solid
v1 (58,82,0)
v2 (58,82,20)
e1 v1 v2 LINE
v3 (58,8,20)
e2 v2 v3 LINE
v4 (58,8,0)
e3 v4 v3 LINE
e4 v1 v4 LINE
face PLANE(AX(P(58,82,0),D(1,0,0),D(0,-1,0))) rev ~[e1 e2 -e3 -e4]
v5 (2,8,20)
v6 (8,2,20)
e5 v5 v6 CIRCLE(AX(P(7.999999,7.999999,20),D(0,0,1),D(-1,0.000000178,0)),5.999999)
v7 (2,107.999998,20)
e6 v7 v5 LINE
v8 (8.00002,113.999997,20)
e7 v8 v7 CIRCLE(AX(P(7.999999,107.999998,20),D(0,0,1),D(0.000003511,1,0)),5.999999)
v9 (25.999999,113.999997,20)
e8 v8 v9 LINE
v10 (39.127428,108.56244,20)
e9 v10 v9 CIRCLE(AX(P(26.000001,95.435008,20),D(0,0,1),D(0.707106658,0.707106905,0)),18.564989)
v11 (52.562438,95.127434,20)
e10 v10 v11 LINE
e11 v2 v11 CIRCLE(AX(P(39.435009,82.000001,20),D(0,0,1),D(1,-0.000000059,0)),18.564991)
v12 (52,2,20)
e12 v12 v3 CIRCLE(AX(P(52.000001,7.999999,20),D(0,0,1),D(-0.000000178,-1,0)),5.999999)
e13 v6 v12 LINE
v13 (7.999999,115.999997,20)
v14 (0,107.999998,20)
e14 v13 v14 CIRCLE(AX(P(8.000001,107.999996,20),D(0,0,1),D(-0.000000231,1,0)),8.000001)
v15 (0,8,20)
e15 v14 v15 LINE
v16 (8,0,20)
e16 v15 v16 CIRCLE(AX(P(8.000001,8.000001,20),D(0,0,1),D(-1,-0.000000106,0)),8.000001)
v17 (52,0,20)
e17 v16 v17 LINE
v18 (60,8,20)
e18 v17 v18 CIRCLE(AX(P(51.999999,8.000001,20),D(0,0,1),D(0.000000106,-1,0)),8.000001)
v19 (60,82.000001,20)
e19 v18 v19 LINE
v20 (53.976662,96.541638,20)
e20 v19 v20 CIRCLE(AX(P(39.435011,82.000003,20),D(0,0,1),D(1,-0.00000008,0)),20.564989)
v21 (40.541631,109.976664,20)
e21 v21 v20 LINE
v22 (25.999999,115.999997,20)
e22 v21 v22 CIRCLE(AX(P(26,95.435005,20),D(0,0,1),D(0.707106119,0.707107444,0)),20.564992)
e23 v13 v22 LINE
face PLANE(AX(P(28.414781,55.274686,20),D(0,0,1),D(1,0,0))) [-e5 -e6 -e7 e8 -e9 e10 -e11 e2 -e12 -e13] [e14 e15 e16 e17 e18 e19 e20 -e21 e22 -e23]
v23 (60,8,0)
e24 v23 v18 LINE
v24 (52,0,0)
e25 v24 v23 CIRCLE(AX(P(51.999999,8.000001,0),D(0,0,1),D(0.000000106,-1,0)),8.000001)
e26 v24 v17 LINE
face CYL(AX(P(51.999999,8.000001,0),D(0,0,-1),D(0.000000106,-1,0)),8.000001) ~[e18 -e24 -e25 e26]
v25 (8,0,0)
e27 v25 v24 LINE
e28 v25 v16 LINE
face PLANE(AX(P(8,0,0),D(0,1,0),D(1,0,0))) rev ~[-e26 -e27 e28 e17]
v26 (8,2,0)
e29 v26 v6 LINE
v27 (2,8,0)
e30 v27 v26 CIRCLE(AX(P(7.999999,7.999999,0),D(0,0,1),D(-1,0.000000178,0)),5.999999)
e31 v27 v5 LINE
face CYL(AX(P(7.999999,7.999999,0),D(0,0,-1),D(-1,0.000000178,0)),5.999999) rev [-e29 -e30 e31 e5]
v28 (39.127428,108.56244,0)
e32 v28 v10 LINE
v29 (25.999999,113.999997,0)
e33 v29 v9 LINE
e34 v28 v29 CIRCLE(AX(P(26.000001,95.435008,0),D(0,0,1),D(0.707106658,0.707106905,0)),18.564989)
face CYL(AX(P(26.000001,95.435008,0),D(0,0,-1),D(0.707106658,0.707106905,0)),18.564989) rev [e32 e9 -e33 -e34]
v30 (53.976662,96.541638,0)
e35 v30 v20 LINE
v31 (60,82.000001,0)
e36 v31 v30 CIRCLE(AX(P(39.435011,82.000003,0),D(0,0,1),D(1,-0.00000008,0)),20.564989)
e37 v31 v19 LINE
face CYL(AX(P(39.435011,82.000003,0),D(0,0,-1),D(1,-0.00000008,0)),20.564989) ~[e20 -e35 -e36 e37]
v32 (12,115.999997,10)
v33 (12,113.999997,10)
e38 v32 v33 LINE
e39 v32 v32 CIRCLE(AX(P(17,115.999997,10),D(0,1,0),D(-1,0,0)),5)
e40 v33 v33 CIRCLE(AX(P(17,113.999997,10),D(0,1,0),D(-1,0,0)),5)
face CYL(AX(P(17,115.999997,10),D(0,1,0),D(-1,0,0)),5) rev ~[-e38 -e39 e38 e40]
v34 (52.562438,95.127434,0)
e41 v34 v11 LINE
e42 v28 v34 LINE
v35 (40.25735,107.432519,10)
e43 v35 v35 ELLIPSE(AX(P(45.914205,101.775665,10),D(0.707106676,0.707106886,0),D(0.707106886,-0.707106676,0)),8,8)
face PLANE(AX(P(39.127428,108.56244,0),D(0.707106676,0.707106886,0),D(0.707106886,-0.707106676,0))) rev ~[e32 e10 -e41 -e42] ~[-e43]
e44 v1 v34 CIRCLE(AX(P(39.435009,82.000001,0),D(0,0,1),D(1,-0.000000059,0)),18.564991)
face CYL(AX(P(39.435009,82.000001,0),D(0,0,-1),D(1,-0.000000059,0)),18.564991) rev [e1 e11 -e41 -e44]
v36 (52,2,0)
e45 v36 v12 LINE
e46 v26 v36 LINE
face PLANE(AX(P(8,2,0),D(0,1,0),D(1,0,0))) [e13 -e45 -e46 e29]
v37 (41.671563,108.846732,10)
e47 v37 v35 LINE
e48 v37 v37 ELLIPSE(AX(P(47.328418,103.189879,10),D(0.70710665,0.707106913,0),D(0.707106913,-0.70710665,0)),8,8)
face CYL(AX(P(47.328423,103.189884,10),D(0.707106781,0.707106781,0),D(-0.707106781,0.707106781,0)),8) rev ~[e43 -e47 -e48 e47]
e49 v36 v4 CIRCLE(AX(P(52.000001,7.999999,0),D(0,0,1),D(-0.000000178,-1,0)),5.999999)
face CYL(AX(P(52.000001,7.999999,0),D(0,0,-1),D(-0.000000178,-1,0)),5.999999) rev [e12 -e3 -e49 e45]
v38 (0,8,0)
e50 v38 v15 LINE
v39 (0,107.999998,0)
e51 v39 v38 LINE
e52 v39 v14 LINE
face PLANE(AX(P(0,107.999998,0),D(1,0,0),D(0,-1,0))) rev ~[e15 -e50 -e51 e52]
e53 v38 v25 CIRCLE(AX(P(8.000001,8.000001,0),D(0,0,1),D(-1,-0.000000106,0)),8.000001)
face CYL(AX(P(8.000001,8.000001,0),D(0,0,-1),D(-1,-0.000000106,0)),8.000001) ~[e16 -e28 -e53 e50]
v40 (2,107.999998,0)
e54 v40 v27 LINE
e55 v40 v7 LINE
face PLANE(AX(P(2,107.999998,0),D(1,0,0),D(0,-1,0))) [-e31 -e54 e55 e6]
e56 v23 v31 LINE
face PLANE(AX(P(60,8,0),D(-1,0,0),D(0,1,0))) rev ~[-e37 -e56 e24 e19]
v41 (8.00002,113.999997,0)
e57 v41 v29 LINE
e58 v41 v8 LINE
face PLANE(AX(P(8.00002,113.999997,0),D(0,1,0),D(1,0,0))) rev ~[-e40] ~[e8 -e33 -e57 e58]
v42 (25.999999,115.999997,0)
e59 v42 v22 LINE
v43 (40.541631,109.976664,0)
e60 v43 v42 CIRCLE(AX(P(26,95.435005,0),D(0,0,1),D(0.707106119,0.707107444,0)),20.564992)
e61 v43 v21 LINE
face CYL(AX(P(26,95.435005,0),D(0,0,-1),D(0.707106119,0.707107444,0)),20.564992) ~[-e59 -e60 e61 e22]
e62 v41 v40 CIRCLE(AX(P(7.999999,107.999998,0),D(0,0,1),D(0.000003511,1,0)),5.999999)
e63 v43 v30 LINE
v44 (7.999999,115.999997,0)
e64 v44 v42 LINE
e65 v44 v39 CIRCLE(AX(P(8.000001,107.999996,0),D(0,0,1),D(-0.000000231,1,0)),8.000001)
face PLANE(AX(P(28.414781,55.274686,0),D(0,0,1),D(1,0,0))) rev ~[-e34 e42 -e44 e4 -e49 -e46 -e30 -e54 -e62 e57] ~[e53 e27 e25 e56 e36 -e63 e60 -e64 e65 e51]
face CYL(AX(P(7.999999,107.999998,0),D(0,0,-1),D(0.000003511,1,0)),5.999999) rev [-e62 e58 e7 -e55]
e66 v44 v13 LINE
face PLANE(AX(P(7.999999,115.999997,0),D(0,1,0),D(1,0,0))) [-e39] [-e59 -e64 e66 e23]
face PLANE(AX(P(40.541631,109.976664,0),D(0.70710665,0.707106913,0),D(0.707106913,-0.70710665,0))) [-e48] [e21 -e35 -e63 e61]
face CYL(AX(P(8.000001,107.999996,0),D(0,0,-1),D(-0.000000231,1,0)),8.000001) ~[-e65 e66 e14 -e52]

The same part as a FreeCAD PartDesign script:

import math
import FreeCAD as App
import Part
import Sketcher
from FreeCAD import Vector

doc = App.newDocument("Part")
body = doc.addObject("PartDesign::Body", "Body")

# Sketch on XY plane
sketch1 = body.newObject("Sketcher::SketchObject", "Sketch")
sketch1.AttachmentSupport = (doc.getObject("XY_Plane"), [""])
sketch1.MapMode = "FlatFace"
sketch1.addGeometry([
    Part.LineSegment(Vector(60, 8, 0), Vector(60, 82.000001, 0)),  # 0
    Part.ArcOfCircle(Part.Circle(Vector(39.435011, 82.000003, 0), Vector(0, 0, 1), 20.564989), math.radians(-0.000005), math.radians(44.999969)),  # 1
    Part.LineSegment(Vector(53.976662, 96.541638, 0), Vector(40.541631, 109.976664, 0)),  # 2
    Part.ArcOfCircle(Part.Circle(Vector(26, 95.435005, 0), Vector(0, 0, 1), 20.564992), math.radians(45.000054), math.radians(90.000001)),  # 3
    Part.LineSegment(Vector(25.999999, 115.999997, 0), Vector(7.999999, 115.999997, 0)),  # 4
    Part.ArcOfCircle(Part.Circle(Vector(8.000001, 107.999996, 0), Vector(0, 0, 1), 8.000001), math.radians(90.000013), math.radians(179.999987)),  # 5
    Part.LineSegment(Vector(0, 107.999998, 0), Vector(0, 8, 0)),  # 6
    Part.ArcOfCircle(Part.Circle(Vector(8.000001, 8.000001, 0), Vector(0, 0, 1), 8.000001), math.radians(-179.999994), math.radians(-90.000006)),  # 7
    Part.LineSegment(Vector(8, 0, 0), Vector(52, 0, 0)),  # 8
    Part.ArcOfCircle(Part.Circle(Vector(51.999999, 8.000001, 0), Vector(0, 0, 1), 8.000001), math.radians(-89.999994), math.radians(-0.000006)),  # 9
    Part.ArcOfCircle(Part.Circle(Vector(7.999999, 107.999998, 0), Vector(0, 0, 1), 5.999999), math.radians(89.999799), math.radians(180.000001)),  # 10
    Part.LineSegment(Vector(8.00002, 113.999997, 0), Vector(25.999999, 113.999997, 0)),  # 11
    Part.ArcOfCircle(Part.Circle(Vector(26.000001, 95.435008, 0), Vector(0, 0, 1), 18.564989), math.radians(45.00001), math.radians(90.000006)),  # 12
    Part.LineSegment(Vector(39.127428, 108.56244, 0), Vector(52.562438, 95.127434, 0)),  # 13
    Part.ArcOfCircle(Part.Circle(Vector(39.435009, 82.000001, 0), Vector(0, 0, 1), 18.564991), math.radians(-0.000003), math.radians(45.000009)),  # 14
    Part.LineSegment(Vector(58, 82, 0), Vector(58, 8, 0)),  # 15
    Part.ArcOfCircle(Part.Circle(Vector(52.000001, 7.999999, 0), Vector(0, 0, 1), 5.999999), math.radians(-90.00001), math.radians(0.00001)),  # 16
    Part.LineSegment(Vector(52, 2, 0), Vector(8, 2, 0)),  # 17
    Part.ArcOfCircle(Part.Circle(Vector(7.999999, 7.999999, 0), Vector(0, 0, 1), 5.999999), math.radians(179.99999), math.radians(270.00001)),  # 18
    Part.LineSegment(Vector(2, 8, 0), Vector(2, 107.999998, 0)),  # 19
], False)
sketch1.addConstraint([
    Sketcher.Constraint("Coincident", 0, 2, 1, 1),
    Sketcher.Constraint("Coincident", 1, 2, 2, 1),
    Sketcher.Constraint("Coincident", 2, 2, 3, 1),
    Sketcher.Constraint("Coincident", 3, 2, 4, 1),
    Sketcher.Constraint("Coincident", 4, 2, 5, 1),
    Sketcher.Constraint("Coincident", 5, 2, 6, 1),
    Sketcher.Constraint("Coincident", 6, 2, 7, 1),
    Sketcher.Constraint("Coincident", 7, 2, 8, 1),
    Sketcher.Constraint("Coincident", 8, 2, 9, 1),
    Sketcher.Constraint("Coincident", 9, 2, 0, 1),
    Sketcher.Constraint("Coincident", 10, 1, 11, 1),
    Sketcher.Constraint("Coincident", 11, 2, 12, 2),
    Sketcher.Constraint("Coincident", 12, 1, 13, 1),
    Sketcher.Constraint("Coincident", 13, 2, 14, 2),
    Sketcher.Constraint("Coincident", 14, 1, 15, 1),
    Sketcher.Constraint("Coincident", 15, 2, 16, 2),
    Sketcher.Constraint("Coincident", 16, 1, 17, 1),
    Sketcher.Constraint("Coincident", 17, 2, 18, 2),
    Sketcher.Constraint("Coincident", 18, 1, 19, 1),
    Sketcher.Constraint("Coincident", 19, 2, 10, 2),
    Sketcher.Constraint("Vertical", 0),
    Sketcher.Constraint("Horizontal", 4),
    Sketcher.Constraint("Vertical", 6),
    Sketcher.Constraint("Horizontal", 8),
    Sketcher.Constraint("Horizontal", 11),
    Sketcher.Constraint("Vertical", 15),
    Sketcher.Constraint("Horizontal", 17),
    Sketcher.Constraint("Vertical", 19),
    Sketcher.Constraint("Coincident", 10, 3, 5, 3),
    Sketcher.Constraint("Coincident", 12, 3, 3, 3),
    Sketcher.Constraint("Coincident", 14, 3, 1, 3),
    Sketcher.Constraint("Coincident", 16, 3, 9, 3),
    Sketcher.Constraint("Coincident", 18, 3, 7, 3),
    Sketcher.Constraint("PointOnObject", 5, 2, -2),
    Sketcher.Constraint("PointOnObject", 7, 2, -1),
    Sketcher.Constraint("Radius", 5, 8.000001),
    Sketcher.Constraint("Radius", 7, 8.000001),
    Sketcher.Constraint("Radius", 9, 8.000001),
    Sketcher.Constraint("Radius", 10, 5.999999),
    Sketcher.Constraint("DistanceX", 4, 2, 4, 1, 18.0),
    Sketcher.Constraint("DistanceX", 8, 1, 8, 2, 44.0),
    Sketcher.Constraint("DistanceX", 17, 2, 17, 1, 44.0),
    Sketcher.Constraint("DistanceY", 0, 1, 0, 2, 74.000001),
    Sketcher.Constraint("DistanceY", 6, 2, 6, 1, 99.999998),
    Sketcher.Constraint("DistanceY", 15, 2, 15, 1, 74.0),
    Sketcher.Constraint("DistanceY", 19, 1, 19, 2, 99.999998),
    Sketcher.Constraint("Distance", 2, 19.0),
    Sketcher.Constraint("DistanceX", -1, 1, 3, 3, 26.0),
    Sketcher.Constraint("DistanceX", -1, 1, 9, 3, 51.999999),
    Sketcher.Constraint("DistanceY", -1, 1, 10, 3, 107.999998),
    Sketcher.Constraint("DistanceY", -1, 1, 14, 3, 82.000001),
    Sketcher.Constraint("DistanceY", -1, 1, 0, 2, 82.000001),
    Sketcher.Constraint("DistanceX", -1, 1, 3, 2, 25.999999),
    Sketcher.Constraint("DistanceY", -1, 1, 5, 2, 107.999998),
    Sketcher.Constraint("DistanceX", -1, 1, 7, 2, 8.0),
    Sketcher.Constraint("DistanceX", -1, 1, 11, 2, 25.999999),
    Sketcher.Constraint("DistanceY", -1, 1, 14, 1, 82.0),
    Sketcher.Constraint("DistanceX", -1, 1, 16, 1, 52.0),
    Sketcher.Constraint("DistanceY", -1, 1, 18, 1, 8.0),
    Sketcher.Constraint("Radius", 1, 20.564989),
    Sketcher.Constraint("Radius", 3, 20.564992),
    Sketcher.Constraint("DistanceX", 11, 1, 11, 2, 17.999979),
    Sketcher.Constraint("Distance", 13, 18.999971),
    Sketcher.Constraint("DistanceY", -1, 1, 1, 2, 96.541638),
    Sketcher.Constraint("DistanceY", -1, 1, 12, 1, 108.56244),
])
pad1 = body.newObject("PartDesign::Pad", "Pad")
pad1.Profile = sketch1
pad1.Length = 20

# Sketch on an angled plane
sketch2 = body.newObject("Sketcher::SketchObject", "Sketch001")
sketch2.Placement = App.Placement(Vector(75.259141, 75.259166, 0), App.Rotation(Vector(-0.707106781, 0.707106781, 0), Vector(0, 0, 0.999999999), Vector(0.707106781, 0.707106781, 0), "ZXY"))
sketch2.addGeometry(Part.Circle(Vector(39, 10, 0), Vector(0, 0, 1), 8), False)
sketch2.addConstraint([
    Sketcher.Constraint("Diameter", 0, 16.0),
    Sketcher.Constraint("DistanceY", -1, 1, 0, 3, 10.0),
    Sketcher.Constraint("DistanceX", -1, 1, 0, 3, 39.5),
])
pocket1 = body.newObject("PartDesign::Pocket", "Pocket")
pocket1.Profile = sketch2
pocket1.Length = 5

# Sketch on XZ plane
sketch3 = body.newObject("Sketcher::SketchObject", "Sketch002")
sketch3.AttachmentSupport = (doc.getObject("XZ_Plane"), [""])
sketch3.MapMode = "FlatFace"
sketch3.AttachmentOffset = App.Placement(Vector(0, 0, -115.999997), App.Rotation())
sketch3.addGeometry(Part.Circle(Vector(17, 10, 0), Vector(0, 0, 1), 5), False)
sketch3.addConstraint([
    Sketcher.Constraint("Diameter", 0, 10.0),
    Sketcher.Constraint("DistanceX", -1, 1, 0, 3, 17.0),
    Sketcher.Constraint("DistanceY", -1, 1, 0, 3, 10.0),
])
pocket2 = body.newObject("PartDesign::Pocket", "Pocket001")
pocket2.Profile = sketch3
pocket2.Length = 5
pocket2.Reversed = True

doc.recompute()
